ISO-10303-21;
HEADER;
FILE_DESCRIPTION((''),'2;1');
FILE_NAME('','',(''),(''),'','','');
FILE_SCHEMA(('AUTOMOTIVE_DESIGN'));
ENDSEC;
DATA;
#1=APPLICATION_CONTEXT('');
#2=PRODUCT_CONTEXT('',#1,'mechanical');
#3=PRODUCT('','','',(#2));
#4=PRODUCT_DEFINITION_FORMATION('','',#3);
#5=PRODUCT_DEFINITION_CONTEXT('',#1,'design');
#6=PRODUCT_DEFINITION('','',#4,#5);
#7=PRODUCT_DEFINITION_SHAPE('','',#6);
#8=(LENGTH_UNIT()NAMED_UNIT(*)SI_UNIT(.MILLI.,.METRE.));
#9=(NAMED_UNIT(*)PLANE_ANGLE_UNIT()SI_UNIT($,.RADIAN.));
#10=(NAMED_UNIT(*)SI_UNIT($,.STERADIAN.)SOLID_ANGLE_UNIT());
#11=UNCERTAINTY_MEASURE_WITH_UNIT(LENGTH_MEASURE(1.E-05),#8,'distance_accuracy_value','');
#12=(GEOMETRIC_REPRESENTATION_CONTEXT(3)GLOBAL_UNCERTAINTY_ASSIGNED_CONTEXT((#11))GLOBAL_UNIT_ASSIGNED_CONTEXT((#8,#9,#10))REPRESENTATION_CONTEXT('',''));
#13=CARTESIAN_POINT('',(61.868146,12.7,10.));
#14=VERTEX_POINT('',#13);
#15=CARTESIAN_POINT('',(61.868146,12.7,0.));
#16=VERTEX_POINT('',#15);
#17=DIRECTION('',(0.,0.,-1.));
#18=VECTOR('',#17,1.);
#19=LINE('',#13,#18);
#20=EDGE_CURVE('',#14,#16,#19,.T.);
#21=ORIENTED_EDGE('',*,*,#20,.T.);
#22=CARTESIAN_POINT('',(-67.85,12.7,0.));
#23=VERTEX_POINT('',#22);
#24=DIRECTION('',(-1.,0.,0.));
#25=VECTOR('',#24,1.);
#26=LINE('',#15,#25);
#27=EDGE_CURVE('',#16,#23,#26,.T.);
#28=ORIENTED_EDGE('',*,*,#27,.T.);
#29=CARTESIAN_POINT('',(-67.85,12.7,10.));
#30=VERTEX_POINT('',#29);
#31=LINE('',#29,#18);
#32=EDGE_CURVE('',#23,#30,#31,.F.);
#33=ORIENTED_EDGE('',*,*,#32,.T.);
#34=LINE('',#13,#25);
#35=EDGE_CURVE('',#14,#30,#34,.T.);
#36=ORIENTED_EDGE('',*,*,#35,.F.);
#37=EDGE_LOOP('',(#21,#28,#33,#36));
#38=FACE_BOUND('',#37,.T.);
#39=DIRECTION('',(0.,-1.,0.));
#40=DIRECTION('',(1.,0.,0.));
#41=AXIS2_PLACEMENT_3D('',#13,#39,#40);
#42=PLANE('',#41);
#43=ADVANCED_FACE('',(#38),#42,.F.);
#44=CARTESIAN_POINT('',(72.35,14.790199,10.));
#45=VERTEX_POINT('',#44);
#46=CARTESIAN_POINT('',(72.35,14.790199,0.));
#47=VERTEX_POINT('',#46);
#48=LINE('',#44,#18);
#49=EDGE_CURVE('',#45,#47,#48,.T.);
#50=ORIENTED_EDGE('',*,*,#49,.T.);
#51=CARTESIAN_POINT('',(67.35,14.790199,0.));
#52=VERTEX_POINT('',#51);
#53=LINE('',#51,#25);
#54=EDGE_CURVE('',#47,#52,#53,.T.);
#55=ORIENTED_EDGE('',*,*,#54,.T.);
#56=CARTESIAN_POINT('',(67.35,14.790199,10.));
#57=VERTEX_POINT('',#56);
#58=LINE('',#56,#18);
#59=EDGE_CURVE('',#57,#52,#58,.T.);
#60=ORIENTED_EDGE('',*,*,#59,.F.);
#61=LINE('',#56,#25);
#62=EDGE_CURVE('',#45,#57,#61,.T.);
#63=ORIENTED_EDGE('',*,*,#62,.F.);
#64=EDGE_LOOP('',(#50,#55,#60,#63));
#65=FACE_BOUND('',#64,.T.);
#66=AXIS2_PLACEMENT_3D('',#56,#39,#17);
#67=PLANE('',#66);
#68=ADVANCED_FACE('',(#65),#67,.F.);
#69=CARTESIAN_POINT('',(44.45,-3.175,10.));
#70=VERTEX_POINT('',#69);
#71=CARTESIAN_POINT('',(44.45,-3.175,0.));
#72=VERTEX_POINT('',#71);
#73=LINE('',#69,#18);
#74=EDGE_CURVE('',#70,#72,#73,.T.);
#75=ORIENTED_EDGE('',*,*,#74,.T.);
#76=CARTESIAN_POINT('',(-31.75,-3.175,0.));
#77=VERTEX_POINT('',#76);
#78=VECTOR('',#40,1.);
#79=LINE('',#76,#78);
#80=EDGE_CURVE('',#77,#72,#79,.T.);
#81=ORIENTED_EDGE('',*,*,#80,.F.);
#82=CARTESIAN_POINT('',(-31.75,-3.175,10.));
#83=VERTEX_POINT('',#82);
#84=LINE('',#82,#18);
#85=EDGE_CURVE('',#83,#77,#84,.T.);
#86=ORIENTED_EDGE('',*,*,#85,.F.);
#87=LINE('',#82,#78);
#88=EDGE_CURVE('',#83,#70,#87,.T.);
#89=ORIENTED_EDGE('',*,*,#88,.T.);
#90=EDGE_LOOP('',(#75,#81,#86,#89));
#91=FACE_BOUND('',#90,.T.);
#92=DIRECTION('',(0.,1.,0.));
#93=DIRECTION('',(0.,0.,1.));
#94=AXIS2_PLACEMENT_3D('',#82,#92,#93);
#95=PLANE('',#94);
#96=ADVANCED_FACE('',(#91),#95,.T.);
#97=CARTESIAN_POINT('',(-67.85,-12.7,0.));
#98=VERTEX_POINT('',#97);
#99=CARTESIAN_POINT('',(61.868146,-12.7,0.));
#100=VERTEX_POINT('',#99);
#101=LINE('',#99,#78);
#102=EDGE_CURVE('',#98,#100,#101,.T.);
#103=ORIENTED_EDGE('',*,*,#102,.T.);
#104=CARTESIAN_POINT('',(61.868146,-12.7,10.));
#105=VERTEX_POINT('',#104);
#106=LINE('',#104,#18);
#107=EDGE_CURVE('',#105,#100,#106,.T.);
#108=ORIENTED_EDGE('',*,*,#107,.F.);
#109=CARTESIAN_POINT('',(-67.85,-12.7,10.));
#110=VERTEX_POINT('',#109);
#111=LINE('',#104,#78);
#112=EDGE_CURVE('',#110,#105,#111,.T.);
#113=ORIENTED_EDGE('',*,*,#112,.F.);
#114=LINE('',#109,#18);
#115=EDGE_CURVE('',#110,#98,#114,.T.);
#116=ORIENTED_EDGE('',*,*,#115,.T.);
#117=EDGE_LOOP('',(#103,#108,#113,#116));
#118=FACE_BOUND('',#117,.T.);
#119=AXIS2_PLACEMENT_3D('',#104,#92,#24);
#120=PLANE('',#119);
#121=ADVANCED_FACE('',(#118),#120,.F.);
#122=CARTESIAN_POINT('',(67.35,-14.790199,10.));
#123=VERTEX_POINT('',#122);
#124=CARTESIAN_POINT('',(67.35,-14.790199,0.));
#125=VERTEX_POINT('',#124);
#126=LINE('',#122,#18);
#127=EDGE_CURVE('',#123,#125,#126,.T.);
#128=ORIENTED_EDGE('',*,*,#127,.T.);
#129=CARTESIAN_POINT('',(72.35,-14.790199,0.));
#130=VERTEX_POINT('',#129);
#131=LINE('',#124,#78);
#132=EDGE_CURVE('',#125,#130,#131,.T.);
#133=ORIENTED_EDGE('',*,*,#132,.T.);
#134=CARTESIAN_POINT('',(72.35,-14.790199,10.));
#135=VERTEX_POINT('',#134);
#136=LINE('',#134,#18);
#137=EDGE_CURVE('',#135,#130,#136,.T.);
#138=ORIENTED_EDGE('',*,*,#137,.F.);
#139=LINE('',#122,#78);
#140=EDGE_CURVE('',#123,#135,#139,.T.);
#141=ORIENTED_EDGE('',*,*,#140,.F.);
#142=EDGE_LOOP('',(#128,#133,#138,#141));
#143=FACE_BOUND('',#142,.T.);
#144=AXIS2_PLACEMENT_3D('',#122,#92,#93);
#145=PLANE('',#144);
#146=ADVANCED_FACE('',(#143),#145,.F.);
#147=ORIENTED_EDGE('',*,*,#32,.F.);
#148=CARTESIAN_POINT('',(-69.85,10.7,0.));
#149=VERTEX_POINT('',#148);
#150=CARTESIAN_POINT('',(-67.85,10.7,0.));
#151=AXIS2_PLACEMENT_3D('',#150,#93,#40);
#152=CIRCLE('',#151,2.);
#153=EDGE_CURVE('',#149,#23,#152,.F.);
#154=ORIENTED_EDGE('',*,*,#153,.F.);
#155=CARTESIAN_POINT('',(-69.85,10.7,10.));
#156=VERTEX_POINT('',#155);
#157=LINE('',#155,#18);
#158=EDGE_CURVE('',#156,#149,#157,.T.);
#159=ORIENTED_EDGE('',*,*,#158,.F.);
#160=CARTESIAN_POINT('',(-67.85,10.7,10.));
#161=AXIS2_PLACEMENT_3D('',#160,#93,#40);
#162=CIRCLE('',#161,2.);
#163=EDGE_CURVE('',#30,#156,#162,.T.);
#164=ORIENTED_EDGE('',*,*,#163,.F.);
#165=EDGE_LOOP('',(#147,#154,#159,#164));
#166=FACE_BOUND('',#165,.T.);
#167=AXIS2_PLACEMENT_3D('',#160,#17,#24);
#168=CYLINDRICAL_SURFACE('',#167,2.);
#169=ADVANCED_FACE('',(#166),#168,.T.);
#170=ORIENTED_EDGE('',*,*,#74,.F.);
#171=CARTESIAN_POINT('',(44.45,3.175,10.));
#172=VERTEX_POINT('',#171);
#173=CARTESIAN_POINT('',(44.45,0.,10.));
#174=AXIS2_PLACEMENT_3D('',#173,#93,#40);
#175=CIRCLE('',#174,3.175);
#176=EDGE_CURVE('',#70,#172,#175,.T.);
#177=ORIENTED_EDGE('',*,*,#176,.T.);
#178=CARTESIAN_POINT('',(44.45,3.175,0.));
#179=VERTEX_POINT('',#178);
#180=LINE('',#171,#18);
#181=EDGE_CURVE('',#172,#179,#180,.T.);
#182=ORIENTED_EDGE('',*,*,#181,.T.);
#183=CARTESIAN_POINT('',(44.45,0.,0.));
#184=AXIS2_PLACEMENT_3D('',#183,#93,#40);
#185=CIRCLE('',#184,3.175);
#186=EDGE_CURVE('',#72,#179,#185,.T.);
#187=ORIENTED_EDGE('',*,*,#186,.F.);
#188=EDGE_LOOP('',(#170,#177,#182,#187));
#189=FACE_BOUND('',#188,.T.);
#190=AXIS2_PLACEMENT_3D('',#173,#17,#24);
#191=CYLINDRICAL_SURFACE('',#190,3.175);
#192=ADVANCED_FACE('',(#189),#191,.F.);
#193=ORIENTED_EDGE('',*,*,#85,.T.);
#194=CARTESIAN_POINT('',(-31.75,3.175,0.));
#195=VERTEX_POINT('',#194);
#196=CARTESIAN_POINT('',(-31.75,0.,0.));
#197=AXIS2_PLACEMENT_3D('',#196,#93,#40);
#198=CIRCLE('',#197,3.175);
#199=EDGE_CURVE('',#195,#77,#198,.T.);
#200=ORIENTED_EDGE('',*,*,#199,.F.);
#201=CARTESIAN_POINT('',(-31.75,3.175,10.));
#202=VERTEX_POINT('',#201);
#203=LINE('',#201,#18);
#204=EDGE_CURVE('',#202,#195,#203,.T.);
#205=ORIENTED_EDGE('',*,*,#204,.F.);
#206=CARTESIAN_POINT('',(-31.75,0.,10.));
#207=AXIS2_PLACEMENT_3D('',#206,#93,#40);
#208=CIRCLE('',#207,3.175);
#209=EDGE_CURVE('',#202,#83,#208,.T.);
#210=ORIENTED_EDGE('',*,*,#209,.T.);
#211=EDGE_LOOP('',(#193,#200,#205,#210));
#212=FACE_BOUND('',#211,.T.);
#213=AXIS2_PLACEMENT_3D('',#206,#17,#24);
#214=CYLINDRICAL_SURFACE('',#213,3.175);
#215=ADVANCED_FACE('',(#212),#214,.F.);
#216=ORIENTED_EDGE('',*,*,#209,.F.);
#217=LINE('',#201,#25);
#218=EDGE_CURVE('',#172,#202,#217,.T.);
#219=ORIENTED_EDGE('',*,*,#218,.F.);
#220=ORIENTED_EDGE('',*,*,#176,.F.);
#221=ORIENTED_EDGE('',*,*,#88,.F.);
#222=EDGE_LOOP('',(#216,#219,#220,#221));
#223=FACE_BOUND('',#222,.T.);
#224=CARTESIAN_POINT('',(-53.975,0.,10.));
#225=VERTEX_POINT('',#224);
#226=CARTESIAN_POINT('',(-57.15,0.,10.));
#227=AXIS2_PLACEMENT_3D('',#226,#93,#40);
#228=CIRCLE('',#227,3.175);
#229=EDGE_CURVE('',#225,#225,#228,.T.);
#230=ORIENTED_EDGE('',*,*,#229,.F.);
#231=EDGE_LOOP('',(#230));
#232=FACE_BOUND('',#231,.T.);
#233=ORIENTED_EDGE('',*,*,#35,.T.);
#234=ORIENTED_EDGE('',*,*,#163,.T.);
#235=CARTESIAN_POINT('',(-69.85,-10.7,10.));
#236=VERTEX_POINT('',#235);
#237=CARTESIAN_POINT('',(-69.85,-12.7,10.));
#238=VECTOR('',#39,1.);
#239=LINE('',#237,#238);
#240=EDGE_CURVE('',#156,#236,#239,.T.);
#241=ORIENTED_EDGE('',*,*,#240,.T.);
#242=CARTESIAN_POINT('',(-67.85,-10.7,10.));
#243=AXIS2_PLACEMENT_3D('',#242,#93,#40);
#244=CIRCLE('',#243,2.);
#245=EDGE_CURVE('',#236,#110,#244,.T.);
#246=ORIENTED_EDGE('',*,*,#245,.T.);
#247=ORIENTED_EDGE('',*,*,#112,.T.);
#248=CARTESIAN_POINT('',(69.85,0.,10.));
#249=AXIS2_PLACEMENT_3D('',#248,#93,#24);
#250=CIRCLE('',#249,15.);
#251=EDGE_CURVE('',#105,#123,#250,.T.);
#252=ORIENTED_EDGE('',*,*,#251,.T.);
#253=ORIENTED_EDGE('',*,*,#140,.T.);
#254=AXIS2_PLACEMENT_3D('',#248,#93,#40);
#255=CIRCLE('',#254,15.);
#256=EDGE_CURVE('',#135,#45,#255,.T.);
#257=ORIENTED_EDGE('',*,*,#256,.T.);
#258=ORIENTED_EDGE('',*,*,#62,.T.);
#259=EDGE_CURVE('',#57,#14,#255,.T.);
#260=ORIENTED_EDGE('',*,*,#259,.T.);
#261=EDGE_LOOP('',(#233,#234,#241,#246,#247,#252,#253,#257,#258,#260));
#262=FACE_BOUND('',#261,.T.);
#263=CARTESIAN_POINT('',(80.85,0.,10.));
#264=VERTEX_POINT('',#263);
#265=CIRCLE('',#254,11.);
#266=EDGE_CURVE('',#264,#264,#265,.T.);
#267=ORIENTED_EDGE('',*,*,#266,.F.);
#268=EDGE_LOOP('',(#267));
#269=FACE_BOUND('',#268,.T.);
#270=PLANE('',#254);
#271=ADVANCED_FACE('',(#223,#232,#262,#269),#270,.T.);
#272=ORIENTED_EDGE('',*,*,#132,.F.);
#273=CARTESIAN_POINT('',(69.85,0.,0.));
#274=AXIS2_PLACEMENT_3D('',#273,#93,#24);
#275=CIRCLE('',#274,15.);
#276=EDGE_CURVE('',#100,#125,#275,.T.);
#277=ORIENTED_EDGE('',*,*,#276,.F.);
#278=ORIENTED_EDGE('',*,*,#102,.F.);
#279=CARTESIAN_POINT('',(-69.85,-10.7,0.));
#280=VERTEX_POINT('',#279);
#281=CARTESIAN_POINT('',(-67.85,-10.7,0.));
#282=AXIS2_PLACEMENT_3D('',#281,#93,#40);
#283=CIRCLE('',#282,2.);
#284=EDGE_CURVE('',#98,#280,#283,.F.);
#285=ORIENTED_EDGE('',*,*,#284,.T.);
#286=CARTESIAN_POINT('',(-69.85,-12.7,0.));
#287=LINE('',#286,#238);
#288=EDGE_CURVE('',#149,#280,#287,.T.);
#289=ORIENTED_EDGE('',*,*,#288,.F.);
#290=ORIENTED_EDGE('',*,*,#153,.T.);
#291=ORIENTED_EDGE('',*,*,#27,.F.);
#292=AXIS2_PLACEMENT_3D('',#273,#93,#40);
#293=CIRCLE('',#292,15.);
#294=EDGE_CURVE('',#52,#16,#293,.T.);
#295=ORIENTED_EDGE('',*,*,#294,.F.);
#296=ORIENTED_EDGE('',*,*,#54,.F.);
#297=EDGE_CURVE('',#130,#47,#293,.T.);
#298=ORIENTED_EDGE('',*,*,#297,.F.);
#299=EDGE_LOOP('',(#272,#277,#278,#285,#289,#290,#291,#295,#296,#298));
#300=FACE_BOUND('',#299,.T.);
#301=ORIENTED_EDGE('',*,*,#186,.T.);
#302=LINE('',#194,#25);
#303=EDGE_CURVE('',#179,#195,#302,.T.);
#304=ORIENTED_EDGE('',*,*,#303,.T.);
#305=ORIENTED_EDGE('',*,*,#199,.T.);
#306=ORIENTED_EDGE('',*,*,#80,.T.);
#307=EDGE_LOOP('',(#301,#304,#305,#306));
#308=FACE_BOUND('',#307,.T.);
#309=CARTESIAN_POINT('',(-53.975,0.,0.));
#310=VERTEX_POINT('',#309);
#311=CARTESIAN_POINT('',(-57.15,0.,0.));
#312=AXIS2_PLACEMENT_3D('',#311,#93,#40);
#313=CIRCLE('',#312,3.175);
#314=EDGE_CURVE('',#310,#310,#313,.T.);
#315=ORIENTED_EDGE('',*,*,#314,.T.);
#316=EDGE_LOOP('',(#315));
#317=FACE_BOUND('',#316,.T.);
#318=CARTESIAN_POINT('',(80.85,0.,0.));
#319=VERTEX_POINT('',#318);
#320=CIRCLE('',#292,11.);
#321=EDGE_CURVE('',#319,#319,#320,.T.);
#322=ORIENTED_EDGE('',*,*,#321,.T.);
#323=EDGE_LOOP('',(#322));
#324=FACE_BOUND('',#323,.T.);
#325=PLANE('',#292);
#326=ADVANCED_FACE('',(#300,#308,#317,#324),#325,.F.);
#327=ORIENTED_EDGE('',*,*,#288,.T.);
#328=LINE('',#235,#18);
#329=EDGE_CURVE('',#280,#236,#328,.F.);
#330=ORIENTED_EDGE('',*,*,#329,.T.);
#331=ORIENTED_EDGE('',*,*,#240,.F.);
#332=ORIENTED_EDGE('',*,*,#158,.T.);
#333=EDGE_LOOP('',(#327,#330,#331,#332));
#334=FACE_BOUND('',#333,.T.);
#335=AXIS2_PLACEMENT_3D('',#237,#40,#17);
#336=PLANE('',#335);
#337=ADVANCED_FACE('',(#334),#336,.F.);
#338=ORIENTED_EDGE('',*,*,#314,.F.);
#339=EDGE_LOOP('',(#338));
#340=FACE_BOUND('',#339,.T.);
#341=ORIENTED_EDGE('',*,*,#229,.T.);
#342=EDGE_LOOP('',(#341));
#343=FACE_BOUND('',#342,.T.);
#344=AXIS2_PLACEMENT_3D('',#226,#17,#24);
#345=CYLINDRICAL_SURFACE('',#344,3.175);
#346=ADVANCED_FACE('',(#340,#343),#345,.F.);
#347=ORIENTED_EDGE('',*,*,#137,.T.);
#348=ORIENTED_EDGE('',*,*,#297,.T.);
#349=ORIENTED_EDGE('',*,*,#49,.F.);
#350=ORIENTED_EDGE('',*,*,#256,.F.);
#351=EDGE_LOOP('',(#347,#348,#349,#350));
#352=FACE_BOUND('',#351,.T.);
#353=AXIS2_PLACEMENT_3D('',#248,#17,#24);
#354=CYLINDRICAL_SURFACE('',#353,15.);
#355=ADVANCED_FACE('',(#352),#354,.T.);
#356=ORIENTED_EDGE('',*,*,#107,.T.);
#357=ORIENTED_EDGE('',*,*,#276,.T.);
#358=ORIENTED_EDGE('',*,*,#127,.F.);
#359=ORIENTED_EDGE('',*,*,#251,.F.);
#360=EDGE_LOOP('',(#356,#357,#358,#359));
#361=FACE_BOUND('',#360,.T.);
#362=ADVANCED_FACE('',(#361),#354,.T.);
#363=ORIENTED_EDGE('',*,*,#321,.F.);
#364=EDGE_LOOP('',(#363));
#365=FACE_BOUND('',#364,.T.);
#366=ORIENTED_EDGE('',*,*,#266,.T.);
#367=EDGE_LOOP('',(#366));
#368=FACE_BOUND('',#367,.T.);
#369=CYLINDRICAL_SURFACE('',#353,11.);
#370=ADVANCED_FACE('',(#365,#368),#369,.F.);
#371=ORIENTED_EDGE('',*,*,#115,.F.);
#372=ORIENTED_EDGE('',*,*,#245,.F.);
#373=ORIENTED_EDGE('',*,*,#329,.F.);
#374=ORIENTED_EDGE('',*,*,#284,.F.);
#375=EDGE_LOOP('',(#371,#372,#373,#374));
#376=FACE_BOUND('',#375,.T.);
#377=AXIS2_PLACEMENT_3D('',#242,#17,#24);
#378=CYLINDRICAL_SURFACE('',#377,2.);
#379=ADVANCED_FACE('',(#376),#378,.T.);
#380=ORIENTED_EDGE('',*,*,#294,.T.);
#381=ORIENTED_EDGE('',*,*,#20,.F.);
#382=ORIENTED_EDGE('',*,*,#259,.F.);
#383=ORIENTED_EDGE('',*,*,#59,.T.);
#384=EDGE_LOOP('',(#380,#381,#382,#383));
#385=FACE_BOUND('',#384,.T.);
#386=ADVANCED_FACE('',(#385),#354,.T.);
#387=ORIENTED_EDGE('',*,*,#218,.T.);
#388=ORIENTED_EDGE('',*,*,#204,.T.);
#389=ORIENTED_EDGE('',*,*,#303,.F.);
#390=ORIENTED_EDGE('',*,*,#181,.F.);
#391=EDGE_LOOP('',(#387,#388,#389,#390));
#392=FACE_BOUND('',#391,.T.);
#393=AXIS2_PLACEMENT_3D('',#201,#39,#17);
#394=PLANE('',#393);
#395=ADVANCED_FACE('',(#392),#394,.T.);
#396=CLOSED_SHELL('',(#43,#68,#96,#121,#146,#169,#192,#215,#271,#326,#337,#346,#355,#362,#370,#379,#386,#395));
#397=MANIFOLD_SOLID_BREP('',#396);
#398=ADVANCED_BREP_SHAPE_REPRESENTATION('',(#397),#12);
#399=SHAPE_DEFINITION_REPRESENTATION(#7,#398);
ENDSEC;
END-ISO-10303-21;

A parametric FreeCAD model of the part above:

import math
import FreeCAD as App
import Part
import Sketcher
Q = App.Units.Quantity


def edges_at(feature, points):
    """Names of the edges that pass closest to the given points."""
    edges = feature.Shape.Edges
    near = lambda p: min(range(len(edges)), key=lambda i: edges[i].distToShape(Part.Vertex(*p))[0])
    return sorted({f"Edge{near(p) + 1}" for p in points})

doc = App.newDocument("Part")
body = doc.addObject("PartDesign::Body", "Body")

# Sketch on XY plane
sketch1 = body.newObject("Sketcher::SketchObject", "Sketch")
sketch1.AttachmentSupport = (doc.getObject("XY_Plane"), [""])
sketch1.MapMode = "FlatFace"
sketch1.addGeometry(Part.LineSegment(App.Vector(-69.8, 12.7, 0), App.Vector(-69.8, -12.7, 0)), False)
sketch1.addGeometry(Part.LineSegment(App.Vector(-69.8, -12.7, 0), App.Vector(61.9, -12.7, 0)), False)
sketch1.addGeometry(Part.ArcOfCircle(Part.Circle(App.Vector(69.9, 0, 0), App.Vector(0, 0, 1), 15), math.radians(-122), math.radians(-100)), False)
sketch1.addGeometry(Part.LineSegment(App.Vector(67.3, -14.8, 0), App.Vector(72.3, -14.8, 0)), False)
sketch1.addGeometry(Part.ArcOfCircle(Part.Circle(App.Vector(69.8, 0, 0), App.Vector(0, 0, 1), 15), math.radians(-80), math.radians(80)), False)
sketch1.addGeometry(Part.LineSegment(App.Vector(72.3, 14.8, 0), App.Vector(67.3, 14.8, 0)), False)
sketch1.addGeometry(Part.ArcOfCircle(Part.Circle(App.Vector(69.9, 0, 0), App.Vector(0, 0, 1), 15), math.radians(100), math.radians(122)), False)
sketch1.addGeometry(Part.LineSegment(App.Vector(61.9, 12.7, 0), App.Vector(-69.8, 12.7, 0)), False)
sketch1.addGeometry(Part.Circle(App.Vector(69.8, 0, 0), App.Vector(0, 0, 1), 11), False)
sketch1.addGeometry(Part.LineSegment(App.Vector(-31.8, 3.2, 0), App.Vector(44.5, 3.2, 0)), False)
sketch1.addGeometry(Part.ArcOfCircle(Part.Circle(App.Vector(44.5, 0, 0), App.Vector(0, 0, 1), 3.2), math.radians(-90), math.radians(90)), False)
sketch1.addGeometry(Part.LineSegment(App.Vector(44.5, -3.2, 0), App.Vector(-31.8, -3.2, 0)), False)
sketch1.addGeometry(Part.ArcOfCircle(Part.Circle(App.Vector(-31.8, 0, 0), App.Vector(0, 0, 1), 3.2), math.radians(90), math.radians(270)), False)
sketch1.addGeometry(Part.Circle(App.Vector(-57.1, 0, 0), App.Vector(0, 0, 1), 3.2), False)
sketch1.addConstraint(Sketcher.Constraint("Coincident", 0, 2, 1, 1))
sketch1.addConstraint(Sketcher.Constraint("Coincident", 1, 2, 2, 1))
sketch1.addConstraint(Sketcher.Constraint("Coincident", 2, 2, 3, 1))
sketch1.addConstraint(Sketcher.Constraint("Coincident", 3, 2, 4, 1))
sketch1.addConstraint(Sketcher.Constraint("Coincident", 4, 2, 5, 1))
sketch1.addConstraint(Sketcher.Constraint("Coincident", 5, 2, 6, 1))
sketch1.addConstraint(Sketcher.Constraint("Coincident", 6, 2, 7, 1))
sketch1.addConstraint(Sketcher.Constraint("Coincident", 7, 2, 0, 1))
sketch1.addConstraint(Sketcher.Constraint("Tangent", 9, 2, 10, 2))
sketch1.addConstraint(Sketcher.Constraint("Tangent", 10, 1, 11, 1))
sketch1.addConstraint(Sketcher.Constraint("Tangent", 11, 2, 12, 2))
sketch1.addConstraint(Sketcher.Constraint("Tangent", 12, 1, 9, 1))
sketch1.addConstraint(Sketcher.Constraint("Vertical", 0))
sketch1.addConstraint(Sketcher.Constraint("Horizontal", 1))
sketch1.addConstraint(Sketcher.Constraint("Horizontal", 3))
sketch1.addConstraint(Sketcher.Constraint("Horizontal", 5))
sketch1.addConstraint(Sketcher.Constraint("Horizontal", 7))
sketch1.addConstraint(Sketcher.Constraint("Horizontal", 9))
sketch1.addConstraint(Sketcher.Constraint("Horizontal", 11))
sketch1.addConstraint(Sketcher.Constraint("Coincident", 4, 3, 2, 3))
sketch1.addConstraint(Sketcher.Constraint("Coincident", 6, 3, 2, 3))
sketch1.addConstraint(Sketcher.Constraint("Coincident", 8, 3, 2, 3))
sketch1.addConstraint(Sketcher.Constraint("Equal", 2, 4))
sketch1.addConstraint(Sketcher.Constraint("Equal", 4, 6))
sketch1.addConstraint(Sketcher.Constraint("Equal", 12, 13))
sketch1.addConstraint(Sketcher.Constraint("Symmetric", 3, 2, 4, 2, -1))
sketch1.addConstraint(Sketcher.Constraint("PointOnObject", 10, 3, -1))
sketch1.addConstraint(Sketcher.Constraint("PointOnObject", 13, 3, -1))
sketch1.addConstraint(Sketcher.Constraint("Vertical", 1, 2, 6, 2))
sketch1.addConstraint(Sketcher.Constraint("Diameter", 8, Q("22 mm")))
sketch1.addConstraint(Sketcher.Constraint("Radius", 2, Q("15 mm")))
sketch1.addConstraint(Sketcher.Constraint("Diameter", 13, Q("6.35 mm")))
sketch1.addConstraint(Sketcher.Constraint("DistanceX", 3, 1, 3, 2, Q("5 mm")))
sketch1.addConstraint(Sketcher.Constraint("DistanceX", 9, 1, 9, 2, Q("76.2 mm")))
sketch1.addConstraint(Sketcher.Constraint("DistanceY", 0, 2, 0, 1, Q("25.4 mm")))
sketch1.addConstraint(Sketcher.Constraint("DistanceX", 13, 3, 4, 3, Q("127 mm")))
sketch1.addConstraint(Sketcher.Constraint("DistanceX", 10, 3, 4, 3, Q("25.4 mm")))
sketch1.addConstraint(Sketcher.Constraint("DistanceX", 0, 2, 13, 3, Q("12.7 mm")))
sketch1.addConstraint(Sketcher.Constraint("DistanceX", -1, 1, 2, 3, Q("69.85 mm")))
pad1 = body.newObject("PartDesign::Pad", "Pad")
pad1.Profile = sketch1
pad1.Length = 10
doc.recompute()

fillet = body.newObject("PartDesign::Fillet", "Fillet")
fillet.Base = (pad1, edges_at(pad1, [(-69.85, -12.7, 5), (-69.85, 12.7, 5)]))
fillet.Radius = 2

doc.recompute()
